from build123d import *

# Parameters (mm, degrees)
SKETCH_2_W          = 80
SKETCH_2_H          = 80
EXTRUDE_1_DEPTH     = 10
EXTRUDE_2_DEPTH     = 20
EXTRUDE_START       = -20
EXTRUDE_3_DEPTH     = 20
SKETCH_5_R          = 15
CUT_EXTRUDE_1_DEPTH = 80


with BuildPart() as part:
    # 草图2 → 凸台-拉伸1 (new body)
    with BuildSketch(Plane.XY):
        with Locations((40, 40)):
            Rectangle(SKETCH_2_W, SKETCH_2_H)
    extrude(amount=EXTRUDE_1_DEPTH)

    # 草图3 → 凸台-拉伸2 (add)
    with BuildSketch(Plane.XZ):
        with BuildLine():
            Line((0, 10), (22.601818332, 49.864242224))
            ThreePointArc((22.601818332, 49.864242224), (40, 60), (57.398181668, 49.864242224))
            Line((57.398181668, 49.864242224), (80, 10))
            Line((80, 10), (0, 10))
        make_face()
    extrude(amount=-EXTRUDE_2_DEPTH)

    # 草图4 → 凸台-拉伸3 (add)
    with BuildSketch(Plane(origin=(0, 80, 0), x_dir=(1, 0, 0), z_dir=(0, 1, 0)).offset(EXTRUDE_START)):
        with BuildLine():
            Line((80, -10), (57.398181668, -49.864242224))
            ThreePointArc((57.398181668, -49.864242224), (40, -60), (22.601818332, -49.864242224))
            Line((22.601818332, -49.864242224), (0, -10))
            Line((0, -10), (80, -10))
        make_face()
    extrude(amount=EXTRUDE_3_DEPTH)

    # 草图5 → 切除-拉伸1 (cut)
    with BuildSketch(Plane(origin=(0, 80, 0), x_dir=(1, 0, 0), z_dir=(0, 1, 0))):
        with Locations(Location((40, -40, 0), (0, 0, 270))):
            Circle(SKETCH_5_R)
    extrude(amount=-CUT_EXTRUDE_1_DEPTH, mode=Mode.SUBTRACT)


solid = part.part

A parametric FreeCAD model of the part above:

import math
import FreeCAD as App
import Part
import Sketcher
Q = App.Units.Quantity

doc = App.newDocument("Part")
body = doc.addObject("PartDesign::Body", "Body")

# Sketch on XY plane
sketch1 = doc.addObject("Sketcher::SketchObject", "Sketch")
body.addObject(sketch1)
sketch1.AttachmentSupport = (doc.XY_Plane, [""])
sketch1.MapMode = "FlatFace"
sketch1.addGeometry(Part.LineSegment(App.Vector(0, 80, 0), App.Vector(0, 0, 0)), False)
sketch1.addGeometry(Part.LineSegment(App.Vector(0, 0, 0), App.Vector(80, 0, 0)), False)
sketch1.addGeometry(Part.LineSegment(App.Vector(80, 0, 0), App.Vector(80, 80, 0)), False)
sketch1.addGeometry(Part.LineSegment(App.Vector(80, 80, 0), App.Vector(0, 80, 0)), False)
sketch1.addConstraint(Sketcher.Constraint("Coincident", 0, 2, 1, 1))
sketch1.addConstraint(Sketcher.Constraint("Coincident", 1, 2, 2, 1))
sketch1.addConstraint(Sketcher.Constraint("Coincident", 2, 2, 3, 1))
sketch1.addConstraint(Sketcher.Constraint("Coincident", 3, 2, 0, 1))
sketch1.addConstraint(Sketcher.Constraint("Vertical", 0))
sketch1.addConstraint(Sketcher.Constraint("Horizontal", 1))
sketch1.addConstraint(Sketcher.Constraint("Vertical", 2))
sketch1.addConstraint(Sketcher.Constraint("Horizontal", 3))
sketch1.addConstraint(Sketcher.Constraint("Coincident", 0, 2, -1, 1))
sketch1.addConstraint(Sketcher.Constraint("Equal", 3, 0))
sketch1.addConstraint(Sketcher.Constraint("DistanceX", 1, 1, 1, 2, Q("80 mm")))
pad1 = doc.addObject("PartDesign::Pad", "Pad")
body.addObject(pad1)
pad1.Profile = sketch1
pad1.Length = 10

# Sketch on XZ plane
sketch2 = doc.addObject("Sketcher::SketchObject", "Sketch001")
body.addObject(sketch2)
sketch2.AttachmentSupport = (doc.XZ_Plane, [""])
sketch2.MapMode = "FlatFace"
sketch2.addGeometry(Part.LineSegment(App.Vector(23, 50, 0), App.Vector(0, 10, 0)), False)
sketch2.addGeometry(Part.LineSegment(App.Vector(0, 10, 0), App.Vector(80, 10, 0)), False)
sketch2.addGeometry(Part.LineSegment(App.Vector(80, 10, 0), App.Vector(57, 50, 0)), False)
sketch2.addGeometry(Part.ArcOfCircle(Part.Circle(App.Vector(40, 40, 0), App.Vector(0, 0, 1), 20), math.radians(30), math.radians(150)), False)
sketch2.addConstraint(Sketcher.Constraint("Coincident", 0, 2, 1, 1))
sketch2.addConstraint(Sketcher.Constraint("Coincident", 1, 2, 2, 1))
sketch2.addConstraint(Sketcher.Constraint("Tangent", 2, 2, 3, 1))
sketch2.addConstraint(Sketcher.Constraint("Tangent", 3, 2, 0, 1))
sketch2.addConstraint(Sketcher.Constraint("Horizontal", 1))
sketch2.addConstraint(Sketcher.Constraint("PointOnObject", 0, 2, -2))
sketch2.addConstraint(Sketcher.Constraint("Horizontal", 2, 2, 3, 2))
sketch2.addConstraint(Sketcher.Constraint("Radius", 3, Q("20 mm")))
sketch2.addConstraint(Sketcher.Constraint("DistanceX", 1, 1, 1, 2, Q("80 mm")))
sketch2.addConstraint(Sketcher.Constraint("DistanceY", -1, 1, 3, 3, Q("40 mm")))
sketch2.addConstraint(Sketcher.Constraint("DistanceY", -1, 1, 0, 2, Q("10 mm")))
pad2 = doc.addObject("PartDesign::Pad", "Pad001")
body.addObject(pad2)
pad2.Profile = sketch2
pad2.Length = 20
pad2.Reversed = True

# Sketch on XZ plane
sketch3 = doc.addObject("Sketcher::SketchObject", "Sketch002")
body.addObject(sketch3)
sketch3.AttachmentSupport = (doc.XZ_Plane, [""])
sketch3.MapMode = "FlatFace"
sketch3.AttachmentOffset = App.Placement(App.Vector(0, 0, -60), App.Rotation())
sketch3.addGeometry(Part.LineSegment(App.Vector(57, 50, 0), App.Vector(80, 10, 0)), False)
sketch3.addGeometry(Part.LineSegment(App.Vector(80, 10, 0), App.Vector(0, 10, 0)), False)
sketch3.addGeometry(Part.LineSegment(App.Vector(0, 10, 0), App.Vector(23, 50, 0)), False)
sketch3.addGeometry(Part.ArcOfCircle(Part.Circle(App.Vector(40, 40, 0), App.Vector(0, 0, 1), 20), math.radians(30), math.radians(150)), False)
sketch3.addConstraint(Sketcher.Constraint("Coincident", 0, 2, 1, 1))
sketch3.addConstraint(Sketcher.Constraint("Coincident", 1, 2, 2, 1))
sketch3.addConstraint(Sketcher.Constraint("Tangent", 2, 2, 3, 2))
sketch3.addConstraint(Sketcher.Constraint("Tangent", 3, 1, 0, 1))
sketch3.addConstraint(Sketcher.Constraint("Horizontal", 1))
sketch3.addConstraint(Sketcher.Constraint("PointOnObject", 1, 2, -2))
sketch3.addConstraint(Sketcher.Constraint("Horizontal", 2, 2, 3, 1))
sketch3.addConstraint(Sketcher.Constraint("Radius", 3, Q("20 mm")))
sketch3.addConstraint(Sketcher.Constraint("DistanceX", 1, 2, 1, 1, Q("80 mm")))
sketch3.addConstraint(Sketcher.Constraint("DistanceY", -1, 1, 3, 3, Q("40 mm")))
sketch3.addConstraint(Sketcher.Constraint("DistanceY", -1, 1, 0, 2, Q("10 mm")))
pad3 = doc.addObject("PartDesign::Pad", "Pad002")
body.addObject(pad3)
pad3.Profile = sketch3
pad3.Length = 20
pad3.Reversed = True

# Sketch on XZ plane
sketch4 = doc.addObject("Sketcher::SketchObject", "Sketch003")
body.addObject(sketch4)
sketch4.AttachmentSupport = (doc.XZ_Plane, [""])
sketch4.MapMode = "FlatFace"
sketch4.AttachmentOffset = App.Placement(App.Vector(0, 0, -80), App.Rotation())
sketch4.addGeometry(Part.Circle(App.Vector(40, 40, 0), App.Vector(0, 0, 1), 15), False)
sketch4.addConstraint(Sketcher.Constraint("Diameter", 0, Q("30 mm")))
sketch4.addConstraint(Sketcher.Constraint("DistanceX", -1, 1, 0, 3, Q("40 mm")))
sketch4.addConstraint(Sketcher.Constraint("DistanceY", -1, 1, 0, 3, Q("40 mm")))
pocket1 = doc.addObject("PartDesign::Pocket", "Pocket")
body.addObject(pocket1)
pocket1.Profile = sketch4
pocket1.Length = 80
pocket1.Reversed = True

doc.recompute()
